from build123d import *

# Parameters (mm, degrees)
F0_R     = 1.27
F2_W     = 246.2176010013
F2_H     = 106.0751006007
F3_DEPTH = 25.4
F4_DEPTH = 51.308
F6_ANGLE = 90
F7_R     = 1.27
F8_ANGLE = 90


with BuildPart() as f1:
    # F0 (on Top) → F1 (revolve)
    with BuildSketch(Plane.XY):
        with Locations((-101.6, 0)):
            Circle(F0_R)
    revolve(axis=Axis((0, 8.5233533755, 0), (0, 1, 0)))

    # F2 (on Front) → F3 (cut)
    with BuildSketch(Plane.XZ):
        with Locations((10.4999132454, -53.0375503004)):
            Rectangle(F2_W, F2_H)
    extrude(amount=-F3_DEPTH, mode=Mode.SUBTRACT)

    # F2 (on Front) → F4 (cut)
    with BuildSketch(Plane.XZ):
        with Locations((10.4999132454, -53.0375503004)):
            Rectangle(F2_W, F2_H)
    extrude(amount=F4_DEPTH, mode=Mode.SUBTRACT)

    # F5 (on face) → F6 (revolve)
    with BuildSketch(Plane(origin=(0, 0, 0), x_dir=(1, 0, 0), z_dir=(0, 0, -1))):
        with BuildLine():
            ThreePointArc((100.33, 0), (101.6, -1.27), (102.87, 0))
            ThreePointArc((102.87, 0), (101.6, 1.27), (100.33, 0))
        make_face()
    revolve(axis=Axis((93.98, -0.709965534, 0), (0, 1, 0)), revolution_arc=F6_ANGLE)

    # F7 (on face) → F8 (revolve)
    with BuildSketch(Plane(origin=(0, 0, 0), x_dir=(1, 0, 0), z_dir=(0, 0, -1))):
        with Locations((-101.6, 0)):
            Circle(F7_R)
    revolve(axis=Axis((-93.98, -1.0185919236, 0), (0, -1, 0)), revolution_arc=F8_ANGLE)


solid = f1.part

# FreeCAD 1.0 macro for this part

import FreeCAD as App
import Part
import Sketcher
Q = App.Units.Quantity


def add_polygon(sketch, points):
    """Adds a closed chain of lines whose ends are joined by coincident constraints."""
    first, n = sketch.GeometryCount, len(points)
    for a, b in zip(points, points[1:] + points[:1]):
        sketch.addGeometry(Part.LineSegment(App.Vector(*a, 0), App.Vector(*b, 0)), False)
    for i in range(n):
        sketch.addConstraint(Sketcher.Constraint("Coincident", first + i, 2, first + (i + 1) % n, 1))

doc = App.newDocument("Part")
params = doc.addObject("Spreadsheet::Sheet", "Params")
for row, (alias, value) in enumerate([
    ("sketch1_diameter", "0.1 in"),
    ("revolution_angle", "360 deg"),
    ("pocket1_length", "1 in"),
    ("pocket2_length", "2.02 in"),
    ("sketch4_diameter", "0.1 in"),
    ("revolution2_angle", "90 deg"),
    ("sketch5_diameter", "0.1 in"),
    ("revolution3_angle", "90 deg"),
], start=1):
    params.set(f"A{row}", alias)
    params.set(f"B{row}", "=" + value)
    params.setAlias(f"B{row}", alias)

body = doc.addObject("PartDesign::Body", "Body")

sketch1 = body.newObject("Sketcher::SketchObject", "Sketch")
sketch1.AttachmentSupport = (doc.getObject("XY_Plane"), [""])
sketch1.MapMode = "FlatFace"
sketch1.addGeometry(Part.Circle(App.Vector(-101.6, 0, 0), App.Vector(0, 0, 1), 1.3), False)
sketch1.addConstraint([
    Sketcher.Constraint("PointOnObject", 0, 3, -1),
    Sketcher.Constraint("Diameter", 0, Q("0.1 in")),
    Sketcher.Constraint("DistanceX", 0, 3, -1, 1, Q("4 in")),
])
sketch1.setExpression("Constraints[1]", "Params.sketch1_diameter")
revolution = body.newObject("PartDesign::Revolution", "Revolution")
revolution.Profile = sketch1
revolution.ReferenceAxis = (sketch1, ["V_Axis"])
revolution.setExpression("Angle", "Params.revolution_angle")

sketch2 = body.newObject("Sketcher::SketchObject", "Sketch001")
sketch2.AttachmentSupport = (doc.getObject("XZ_Plane"), [""])
sketch2.MapMode = "FlatFace"
add_polygon(sketch2, [(-113, 0), (-113, -106), (134, -106), (134, 0)])
sketch2.addConstraint([
    Sketcher.Constraint("Vertical", 0),
    Sketcher.Constraint("Horizontal", 1),
    Sketcher.Constraint("Vertical", 2),
    Sketcher.Constraint("Horizontal", 3),
    Sketcher.Constraint("PointOnObject", 2, 2, -1),
    Sketcher.Constraint("DistanceX", 1, 1, 1, 2, Q("246.217601 mm")),
    Sketcher.Constraint("DistanceY", 0, 2, 0, 1, Q("106.075101 mm")),
    Sketcher.Constraint("DistanceX", 0, 2, -1, 1, Q("112.608887 mm")),
])
pocket1 = body.newObject("PartDesign::Pocket", "Pocket")
pocket1.Profile = sketch2
pocket1.setExpression("Length", "Params.pocket1_length")

sketch3 = body.newObject("Sketcher::SketchObject", "Sketch002")
sketch3.AttachmentSupport = (doc.getObject("XZ_Plane"), [""])
sketch3.MapMode = "FlatFace"
add_polygon(sketch3, [(-113, 0), (-113, -106), (134, -106), (134, 0)])
sketch3.addConstraint([
    Sketcher.Constraint("Vertical", 0),
    Sketcher.Constraint("Horizontal", 1),
    Sketcher.Constraint("Vertical", 2),
    Sketcher.Constraint("Horizontal", 3),
    Sketcher.Constraint("PointOnObject", 2, 2, -1),
    Sketcher.Constraint("DistanceX", 1, 1, 1, 2, Q("246.217601 mm")),
    Sketcher.Constraint("DistanceY", 0, 2, 0, 1, Q("106.075101 mm")),
    Sketcher.Constraint("DistanceX", 0, 2, -1, 1, Q("112.608887 mm")),
])
pocket2 = body.newObject("PartDesign::Pocket", "Pocket001")
pocket2.Profile = sketch3
pocket2.setExpression("Length", "Params.pocket2_length")
pocket2.Reversed = True

sketch4 = body.newObject("Sketcher::SketchObject", "Sketch003")
sketch4.AttachmentSupport = (doc.getObject("XY_Plane"), [""])
sketch4.MapMode = "FlatFace"
sketch4.addGeometry(Part.Circle(App.Vector(101.6, 0, 0), App.Vector(0, 0, 1), 1.3), False)
sketch4.addGeometry(Part.LineSegment(App.Vector(94, 0, 0), App.Vector(94, 10, 0)), True)
sketch4.addConstraint([
    Sketcher.Constraint("Vertical", 1),
    Sketcher.Constraint("PointOnObject", 0, 3, -1),
    Sketcher.Constraint("PointOnObject", 1, 1, -1),
    Sketcher.Constraint("Diameter", 0, Q("0.1 in")),
    Sketcher.Constraint("DistanceX", -1, 1, 0, 3, Q("4 in")),
    Sketcher.Constraint("DistanceX", -1, 1, 1, 1, Q("3.7 in")),
    Sketcher.Constraint("DistanceY", 1, 1, 1, 2, Q("10 mm")),
])
sketch4.setExpression("Constraints[3]", "Params.sketch4_diameter")
revolution2 = body.newObject("PartDesign::Revolution", "Revolution001")
revolution2.Profile = sketch4
revolution2.ReferenceAxis = (sketch4, ["Axis0"])
revolution2.setExpression("Angle", "Params.revolution2_angle")

sketch5 = body.newObject("Sketcher::SketchObject", "Sketch004")
sketch5.AttachmentSupport = (doc.getObject("XY_Plane"), [""])
sketch5.MapMode = "FlatFace"
sketch5.addGeometry(Part.Circle(App.Vector(-101.6, 0, 0), App.Vector(0, 0, 1), 1.3), False)
sketch5.addGeometry(Part.LineSegment(App.Vector(-94, 0, 0), App.Vector(-94, -10, 0)), True)
sketch5.addConstraint([
    Sketcher.Constraint("Vertical", 1),
    Sketcher.Constraint("PointOnObject", 0, 3, -1),
    Sketcher.Constraint("PointOnObject", 1, 1, -1),
    Sketcher.Constraint("Diameter", 0, Q("0.1 in")),
    Sketcher.Constraint("DistanceX", 0, 3, -1, 1, Q("4 in")),
    Sketcher.Constraint("DistanceX", 1, 1, -1, 1, Q("3.7 in")),
    Sketcher.Constraint("DistanceY", 1, 2, 1, 1, Q("10 mm")),
])
sketch5.setExpression("Constraints[3]", "Params.sketch5_diameter")
revolution3 = body.newObject("PartDesign::Revolution", "Revolution002")
revolution3.Profile = sketch5
revolution3.ReferenceAxis = (sketch5, ["Axis0"])
revolution3.setExpression("Angle", "Params.revolution3_angle")

doc.recompute()
